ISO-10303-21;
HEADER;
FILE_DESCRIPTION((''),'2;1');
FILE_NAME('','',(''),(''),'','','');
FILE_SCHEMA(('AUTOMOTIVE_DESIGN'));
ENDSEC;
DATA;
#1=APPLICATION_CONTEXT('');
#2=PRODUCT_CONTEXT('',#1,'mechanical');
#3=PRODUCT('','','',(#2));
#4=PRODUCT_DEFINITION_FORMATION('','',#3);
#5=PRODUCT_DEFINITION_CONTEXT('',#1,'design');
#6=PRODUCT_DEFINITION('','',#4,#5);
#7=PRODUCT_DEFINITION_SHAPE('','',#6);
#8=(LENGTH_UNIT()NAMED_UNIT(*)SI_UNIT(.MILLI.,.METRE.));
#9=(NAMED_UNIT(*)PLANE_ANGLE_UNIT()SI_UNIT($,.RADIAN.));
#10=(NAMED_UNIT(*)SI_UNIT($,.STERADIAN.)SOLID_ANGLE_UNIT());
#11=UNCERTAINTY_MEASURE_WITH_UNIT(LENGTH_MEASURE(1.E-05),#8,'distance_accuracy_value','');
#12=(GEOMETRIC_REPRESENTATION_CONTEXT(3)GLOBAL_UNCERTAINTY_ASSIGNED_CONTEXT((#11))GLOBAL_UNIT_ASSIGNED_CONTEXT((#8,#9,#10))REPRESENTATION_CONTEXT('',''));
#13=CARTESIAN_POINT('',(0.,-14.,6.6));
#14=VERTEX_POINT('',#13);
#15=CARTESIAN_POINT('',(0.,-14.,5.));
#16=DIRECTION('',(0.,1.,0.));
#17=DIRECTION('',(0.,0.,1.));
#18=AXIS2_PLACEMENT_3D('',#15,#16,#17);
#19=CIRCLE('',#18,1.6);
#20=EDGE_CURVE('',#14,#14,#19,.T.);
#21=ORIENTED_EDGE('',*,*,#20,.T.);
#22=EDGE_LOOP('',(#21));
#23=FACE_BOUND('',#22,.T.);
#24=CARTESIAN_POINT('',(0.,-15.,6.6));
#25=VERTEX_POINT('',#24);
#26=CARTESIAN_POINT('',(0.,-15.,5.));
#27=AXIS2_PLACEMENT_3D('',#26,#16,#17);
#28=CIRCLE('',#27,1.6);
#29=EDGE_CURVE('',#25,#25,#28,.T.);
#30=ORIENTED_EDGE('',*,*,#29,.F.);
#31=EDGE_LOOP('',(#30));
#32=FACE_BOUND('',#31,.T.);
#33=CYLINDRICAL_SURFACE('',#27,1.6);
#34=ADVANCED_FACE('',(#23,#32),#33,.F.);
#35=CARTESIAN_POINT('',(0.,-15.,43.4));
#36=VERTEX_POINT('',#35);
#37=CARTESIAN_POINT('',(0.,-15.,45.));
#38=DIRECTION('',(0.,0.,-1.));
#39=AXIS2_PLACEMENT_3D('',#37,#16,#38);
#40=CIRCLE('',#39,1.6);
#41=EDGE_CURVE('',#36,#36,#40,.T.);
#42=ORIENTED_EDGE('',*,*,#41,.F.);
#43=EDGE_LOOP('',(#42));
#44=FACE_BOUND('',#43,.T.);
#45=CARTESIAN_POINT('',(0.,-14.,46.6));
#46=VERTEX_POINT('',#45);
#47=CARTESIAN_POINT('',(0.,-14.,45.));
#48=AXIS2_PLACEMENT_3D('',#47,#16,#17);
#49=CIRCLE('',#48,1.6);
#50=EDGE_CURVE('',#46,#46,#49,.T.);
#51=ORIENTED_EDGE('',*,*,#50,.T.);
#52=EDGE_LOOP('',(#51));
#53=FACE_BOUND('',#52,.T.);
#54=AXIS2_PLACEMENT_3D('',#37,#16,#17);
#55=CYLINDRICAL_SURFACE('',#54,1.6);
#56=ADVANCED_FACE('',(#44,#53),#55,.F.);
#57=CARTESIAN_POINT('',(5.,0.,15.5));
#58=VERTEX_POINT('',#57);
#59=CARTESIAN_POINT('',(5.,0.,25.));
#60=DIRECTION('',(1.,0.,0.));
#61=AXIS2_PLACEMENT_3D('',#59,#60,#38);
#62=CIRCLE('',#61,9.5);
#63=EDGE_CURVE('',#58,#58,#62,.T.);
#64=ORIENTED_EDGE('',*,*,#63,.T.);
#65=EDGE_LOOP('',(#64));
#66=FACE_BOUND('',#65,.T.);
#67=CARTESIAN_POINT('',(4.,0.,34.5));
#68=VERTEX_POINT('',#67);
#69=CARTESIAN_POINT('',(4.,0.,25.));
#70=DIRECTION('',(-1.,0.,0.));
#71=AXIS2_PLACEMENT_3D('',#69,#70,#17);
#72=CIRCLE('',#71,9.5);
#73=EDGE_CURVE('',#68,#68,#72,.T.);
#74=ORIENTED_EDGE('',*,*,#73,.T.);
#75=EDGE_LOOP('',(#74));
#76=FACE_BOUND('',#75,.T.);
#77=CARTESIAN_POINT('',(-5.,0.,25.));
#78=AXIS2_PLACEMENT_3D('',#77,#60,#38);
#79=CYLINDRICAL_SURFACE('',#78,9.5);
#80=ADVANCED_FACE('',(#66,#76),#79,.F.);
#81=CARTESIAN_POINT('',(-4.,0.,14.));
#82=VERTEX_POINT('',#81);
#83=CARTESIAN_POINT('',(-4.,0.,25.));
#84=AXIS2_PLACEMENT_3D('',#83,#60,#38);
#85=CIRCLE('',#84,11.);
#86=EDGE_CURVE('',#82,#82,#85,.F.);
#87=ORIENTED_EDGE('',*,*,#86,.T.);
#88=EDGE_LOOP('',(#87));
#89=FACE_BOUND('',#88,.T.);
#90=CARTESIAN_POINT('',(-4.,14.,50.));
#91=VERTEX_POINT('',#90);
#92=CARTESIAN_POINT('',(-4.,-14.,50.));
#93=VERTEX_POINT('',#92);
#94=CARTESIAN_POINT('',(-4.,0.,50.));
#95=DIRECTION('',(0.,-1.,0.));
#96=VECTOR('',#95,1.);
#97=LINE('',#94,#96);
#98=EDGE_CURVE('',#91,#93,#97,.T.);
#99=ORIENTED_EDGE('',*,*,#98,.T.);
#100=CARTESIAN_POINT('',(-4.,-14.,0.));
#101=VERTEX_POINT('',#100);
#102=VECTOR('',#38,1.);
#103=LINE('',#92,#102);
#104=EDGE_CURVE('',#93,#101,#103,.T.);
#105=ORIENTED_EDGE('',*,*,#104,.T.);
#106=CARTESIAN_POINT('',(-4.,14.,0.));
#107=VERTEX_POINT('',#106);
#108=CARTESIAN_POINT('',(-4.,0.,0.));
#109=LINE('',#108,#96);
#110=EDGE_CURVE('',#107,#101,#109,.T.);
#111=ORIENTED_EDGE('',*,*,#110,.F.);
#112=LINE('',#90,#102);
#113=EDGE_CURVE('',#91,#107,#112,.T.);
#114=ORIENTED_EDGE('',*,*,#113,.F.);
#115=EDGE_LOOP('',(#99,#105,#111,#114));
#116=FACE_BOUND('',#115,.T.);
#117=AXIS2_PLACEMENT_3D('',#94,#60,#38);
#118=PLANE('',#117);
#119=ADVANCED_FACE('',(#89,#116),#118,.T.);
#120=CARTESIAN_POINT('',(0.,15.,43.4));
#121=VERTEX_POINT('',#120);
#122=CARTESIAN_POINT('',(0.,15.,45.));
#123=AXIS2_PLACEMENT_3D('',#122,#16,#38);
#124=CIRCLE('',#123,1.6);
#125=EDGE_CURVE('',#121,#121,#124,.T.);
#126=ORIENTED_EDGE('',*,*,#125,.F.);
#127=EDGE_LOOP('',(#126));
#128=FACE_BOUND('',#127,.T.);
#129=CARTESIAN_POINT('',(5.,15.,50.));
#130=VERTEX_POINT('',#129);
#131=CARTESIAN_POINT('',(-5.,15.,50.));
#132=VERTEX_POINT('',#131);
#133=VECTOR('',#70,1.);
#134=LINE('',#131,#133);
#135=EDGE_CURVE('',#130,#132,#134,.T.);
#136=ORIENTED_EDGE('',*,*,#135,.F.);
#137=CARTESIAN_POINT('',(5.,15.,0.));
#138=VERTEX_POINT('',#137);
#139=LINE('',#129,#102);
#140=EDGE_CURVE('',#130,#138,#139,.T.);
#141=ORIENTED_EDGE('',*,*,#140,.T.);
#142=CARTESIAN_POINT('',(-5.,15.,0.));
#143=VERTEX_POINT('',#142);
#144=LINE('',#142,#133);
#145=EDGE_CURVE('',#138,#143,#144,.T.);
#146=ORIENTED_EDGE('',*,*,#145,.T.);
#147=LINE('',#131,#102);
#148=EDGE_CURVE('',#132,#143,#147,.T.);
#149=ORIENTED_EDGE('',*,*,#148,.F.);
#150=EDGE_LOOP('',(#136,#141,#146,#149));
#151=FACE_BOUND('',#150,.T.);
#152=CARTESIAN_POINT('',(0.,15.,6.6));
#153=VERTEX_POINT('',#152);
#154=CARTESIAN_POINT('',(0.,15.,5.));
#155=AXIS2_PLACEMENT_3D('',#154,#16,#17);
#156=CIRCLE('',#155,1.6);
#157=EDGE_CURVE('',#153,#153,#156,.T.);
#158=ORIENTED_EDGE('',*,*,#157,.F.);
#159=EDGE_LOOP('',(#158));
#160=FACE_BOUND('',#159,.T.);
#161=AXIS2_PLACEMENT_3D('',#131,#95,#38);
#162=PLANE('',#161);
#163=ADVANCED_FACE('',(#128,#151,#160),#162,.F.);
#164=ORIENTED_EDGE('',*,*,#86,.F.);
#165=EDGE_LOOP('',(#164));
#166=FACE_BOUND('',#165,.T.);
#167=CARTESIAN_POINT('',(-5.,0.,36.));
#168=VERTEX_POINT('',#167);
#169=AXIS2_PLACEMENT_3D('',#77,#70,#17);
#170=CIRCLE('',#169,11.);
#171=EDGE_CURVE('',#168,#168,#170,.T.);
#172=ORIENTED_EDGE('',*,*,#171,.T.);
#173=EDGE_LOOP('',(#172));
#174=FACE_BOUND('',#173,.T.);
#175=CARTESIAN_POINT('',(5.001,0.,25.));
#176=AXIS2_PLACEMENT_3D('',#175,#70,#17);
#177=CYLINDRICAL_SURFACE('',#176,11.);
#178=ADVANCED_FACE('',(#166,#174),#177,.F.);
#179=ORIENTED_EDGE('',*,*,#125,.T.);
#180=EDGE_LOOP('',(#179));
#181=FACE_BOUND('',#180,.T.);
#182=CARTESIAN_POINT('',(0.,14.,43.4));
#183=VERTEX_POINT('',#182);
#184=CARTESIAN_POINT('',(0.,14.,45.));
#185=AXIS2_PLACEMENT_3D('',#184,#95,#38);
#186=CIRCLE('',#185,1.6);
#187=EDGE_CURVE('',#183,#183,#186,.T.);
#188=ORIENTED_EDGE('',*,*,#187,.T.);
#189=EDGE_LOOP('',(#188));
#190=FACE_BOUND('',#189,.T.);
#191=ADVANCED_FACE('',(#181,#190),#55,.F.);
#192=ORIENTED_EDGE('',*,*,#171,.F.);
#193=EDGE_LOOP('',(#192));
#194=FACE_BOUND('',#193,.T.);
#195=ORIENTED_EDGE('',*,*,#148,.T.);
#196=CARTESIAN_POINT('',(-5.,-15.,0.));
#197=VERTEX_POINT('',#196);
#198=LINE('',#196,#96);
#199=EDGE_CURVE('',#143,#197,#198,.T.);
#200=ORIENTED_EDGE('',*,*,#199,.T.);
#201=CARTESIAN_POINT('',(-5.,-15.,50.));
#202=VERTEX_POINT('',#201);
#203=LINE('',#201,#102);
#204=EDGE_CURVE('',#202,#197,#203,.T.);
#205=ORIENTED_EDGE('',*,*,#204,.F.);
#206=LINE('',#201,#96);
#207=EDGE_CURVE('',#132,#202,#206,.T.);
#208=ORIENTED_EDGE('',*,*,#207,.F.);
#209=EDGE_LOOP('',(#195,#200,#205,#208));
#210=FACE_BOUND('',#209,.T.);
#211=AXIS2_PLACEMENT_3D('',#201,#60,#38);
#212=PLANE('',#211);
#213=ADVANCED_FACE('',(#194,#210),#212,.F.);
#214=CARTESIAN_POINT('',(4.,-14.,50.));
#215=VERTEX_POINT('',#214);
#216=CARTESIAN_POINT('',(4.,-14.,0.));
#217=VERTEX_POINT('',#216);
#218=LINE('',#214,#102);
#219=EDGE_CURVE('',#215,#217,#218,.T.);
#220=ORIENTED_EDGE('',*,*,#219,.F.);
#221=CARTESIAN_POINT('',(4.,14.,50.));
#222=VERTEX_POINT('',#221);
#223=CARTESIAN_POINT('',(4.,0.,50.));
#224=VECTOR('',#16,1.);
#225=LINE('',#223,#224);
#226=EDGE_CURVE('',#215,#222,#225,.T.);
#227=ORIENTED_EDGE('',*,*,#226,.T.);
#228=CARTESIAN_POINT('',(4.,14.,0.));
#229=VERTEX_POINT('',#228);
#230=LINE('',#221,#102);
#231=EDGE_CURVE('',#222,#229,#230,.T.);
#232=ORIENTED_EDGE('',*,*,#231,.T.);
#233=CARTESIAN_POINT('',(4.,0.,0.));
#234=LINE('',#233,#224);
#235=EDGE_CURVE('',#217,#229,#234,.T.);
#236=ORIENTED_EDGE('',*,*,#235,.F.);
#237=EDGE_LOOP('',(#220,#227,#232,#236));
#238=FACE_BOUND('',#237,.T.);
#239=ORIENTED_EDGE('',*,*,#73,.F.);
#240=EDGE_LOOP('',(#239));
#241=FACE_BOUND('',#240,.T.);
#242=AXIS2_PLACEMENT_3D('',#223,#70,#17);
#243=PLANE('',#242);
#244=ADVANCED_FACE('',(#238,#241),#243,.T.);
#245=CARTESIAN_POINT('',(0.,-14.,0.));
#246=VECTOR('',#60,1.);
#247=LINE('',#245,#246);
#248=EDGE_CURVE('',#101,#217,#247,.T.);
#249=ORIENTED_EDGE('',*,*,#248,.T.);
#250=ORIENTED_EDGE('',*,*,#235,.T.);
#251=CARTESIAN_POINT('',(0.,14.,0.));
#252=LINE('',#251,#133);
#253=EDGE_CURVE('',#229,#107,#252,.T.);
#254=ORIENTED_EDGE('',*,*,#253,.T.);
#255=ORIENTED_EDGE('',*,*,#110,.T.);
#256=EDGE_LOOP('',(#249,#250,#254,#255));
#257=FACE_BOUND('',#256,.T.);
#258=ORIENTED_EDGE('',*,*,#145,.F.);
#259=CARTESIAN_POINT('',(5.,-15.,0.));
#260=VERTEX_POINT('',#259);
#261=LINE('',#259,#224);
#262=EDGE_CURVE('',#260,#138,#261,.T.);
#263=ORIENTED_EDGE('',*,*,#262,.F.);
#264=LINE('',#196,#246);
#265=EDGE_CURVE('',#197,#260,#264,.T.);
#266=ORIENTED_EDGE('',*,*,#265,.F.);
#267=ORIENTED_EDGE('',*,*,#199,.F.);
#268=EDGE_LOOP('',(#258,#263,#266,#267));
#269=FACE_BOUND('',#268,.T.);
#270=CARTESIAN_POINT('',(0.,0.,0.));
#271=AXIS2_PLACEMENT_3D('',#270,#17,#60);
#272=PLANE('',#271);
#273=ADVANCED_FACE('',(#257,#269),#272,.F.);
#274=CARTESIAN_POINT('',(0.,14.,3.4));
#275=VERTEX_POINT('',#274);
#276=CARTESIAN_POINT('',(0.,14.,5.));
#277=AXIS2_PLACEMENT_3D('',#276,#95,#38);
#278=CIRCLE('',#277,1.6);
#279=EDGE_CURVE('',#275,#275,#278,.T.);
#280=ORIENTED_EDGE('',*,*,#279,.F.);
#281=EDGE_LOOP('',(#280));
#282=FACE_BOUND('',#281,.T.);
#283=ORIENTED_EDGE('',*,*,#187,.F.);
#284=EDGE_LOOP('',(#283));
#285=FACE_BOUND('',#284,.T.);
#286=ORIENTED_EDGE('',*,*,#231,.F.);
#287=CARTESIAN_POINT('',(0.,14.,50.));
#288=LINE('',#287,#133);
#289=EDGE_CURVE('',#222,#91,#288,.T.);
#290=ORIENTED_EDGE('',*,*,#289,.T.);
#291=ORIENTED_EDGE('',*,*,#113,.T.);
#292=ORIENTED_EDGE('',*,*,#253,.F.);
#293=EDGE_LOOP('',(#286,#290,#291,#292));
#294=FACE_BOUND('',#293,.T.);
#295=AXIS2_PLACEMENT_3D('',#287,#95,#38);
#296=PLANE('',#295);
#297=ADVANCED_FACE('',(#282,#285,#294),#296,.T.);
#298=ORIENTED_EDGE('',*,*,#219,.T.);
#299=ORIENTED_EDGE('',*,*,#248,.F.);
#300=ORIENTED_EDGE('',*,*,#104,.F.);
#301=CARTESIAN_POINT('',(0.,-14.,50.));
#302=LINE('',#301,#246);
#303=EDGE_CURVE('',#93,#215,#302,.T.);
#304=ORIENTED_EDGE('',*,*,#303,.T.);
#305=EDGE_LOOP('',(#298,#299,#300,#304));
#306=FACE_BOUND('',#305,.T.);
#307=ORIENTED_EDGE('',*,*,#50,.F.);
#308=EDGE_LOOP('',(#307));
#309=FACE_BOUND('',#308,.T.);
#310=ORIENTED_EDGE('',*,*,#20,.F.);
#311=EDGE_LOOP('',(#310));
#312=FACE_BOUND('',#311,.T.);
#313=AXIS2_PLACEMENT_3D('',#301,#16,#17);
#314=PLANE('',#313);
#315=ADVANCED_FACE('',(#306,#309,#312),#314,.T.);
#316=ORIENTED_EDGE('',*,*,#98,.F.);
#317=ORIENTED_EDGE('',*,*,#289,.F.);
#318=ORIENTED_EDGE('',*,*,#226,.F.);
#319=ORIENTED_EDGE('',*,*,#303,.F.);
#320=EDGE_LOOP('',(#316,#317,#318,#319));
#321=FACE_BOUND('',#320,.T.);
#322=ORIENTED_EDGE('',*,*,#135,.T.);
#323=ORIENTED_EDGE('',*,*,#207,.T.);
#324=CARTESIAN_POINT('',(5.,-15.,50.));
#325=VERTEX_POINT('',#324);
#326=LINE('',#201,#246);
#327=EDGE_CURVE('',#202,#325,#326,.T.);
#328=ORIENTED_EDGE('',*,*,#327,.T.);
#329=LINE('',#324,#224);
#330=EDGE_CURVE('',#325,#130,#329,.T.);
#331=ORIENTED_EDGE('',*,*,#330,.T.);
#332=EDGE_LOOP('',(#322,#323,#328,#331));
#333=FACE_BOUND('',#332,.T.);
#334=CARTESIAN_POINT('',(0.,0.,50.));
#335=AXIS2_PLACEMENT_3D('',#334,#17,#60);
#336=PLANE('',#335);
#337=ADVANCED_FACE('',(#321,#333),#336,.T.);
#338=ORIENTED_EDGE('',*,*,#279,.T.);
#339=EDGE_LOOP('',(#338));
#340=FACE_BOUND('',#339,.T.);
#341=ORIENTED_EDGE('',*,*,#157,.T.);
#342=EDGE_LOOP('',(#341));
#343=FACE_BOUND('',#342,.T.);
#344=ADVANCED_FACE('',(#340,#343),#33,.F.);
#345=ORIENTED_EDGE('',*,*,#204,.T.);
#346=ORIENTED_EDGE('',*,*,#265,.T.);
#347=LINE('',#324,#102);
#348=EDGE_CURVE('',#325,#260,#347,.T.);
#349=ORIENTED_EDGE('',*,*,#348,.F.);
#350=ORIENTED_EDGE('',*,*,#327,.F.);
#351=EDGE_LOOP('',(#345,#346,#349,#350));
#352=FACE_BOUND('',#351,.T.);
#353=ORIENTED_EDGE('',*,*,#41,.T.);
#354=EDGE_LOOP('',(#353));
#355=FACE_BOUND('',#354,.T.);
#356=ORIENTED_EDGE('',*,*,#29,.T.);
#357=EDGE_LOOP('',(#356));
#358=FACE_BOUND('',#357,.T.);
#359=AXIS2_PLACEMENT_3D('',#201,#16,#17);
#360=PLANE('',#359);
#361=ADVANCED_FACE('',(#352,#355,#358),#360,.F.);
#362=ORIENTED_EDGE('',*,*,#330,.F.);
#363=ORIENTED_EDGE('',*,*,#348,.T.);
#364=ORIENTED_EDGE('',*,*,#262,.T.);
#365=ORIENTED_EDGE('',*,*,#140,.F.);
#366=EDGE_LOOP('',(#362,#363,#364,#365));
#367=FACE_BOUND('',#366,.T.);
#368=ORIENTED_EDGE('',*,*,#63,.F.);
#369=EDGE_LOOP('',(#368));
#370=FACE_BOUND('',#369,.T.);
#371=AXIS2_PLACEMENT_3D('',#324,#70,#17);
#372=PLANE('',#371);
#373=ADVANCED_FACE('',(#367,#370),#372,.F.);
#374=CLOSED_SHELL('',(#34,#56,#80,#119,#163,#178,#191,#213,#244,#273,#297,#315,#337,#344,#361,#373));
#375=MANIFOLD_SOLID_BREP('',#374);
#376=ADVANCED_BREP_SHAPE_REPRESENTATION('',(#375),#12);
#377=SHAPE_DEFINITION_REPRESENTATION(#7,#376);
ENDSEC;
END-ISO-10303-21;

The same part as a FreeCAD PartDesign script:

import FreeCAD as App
import Part
import Sketcher
Q = App.Units.Quantity

doc = App.newDocument("Part")
body = doc.addObject("PartDesign::Body", "Body")

# Sketch on XY plane
sketch1 = body.newObject("Sketcher::SketchObject", "Sketch")
sketch1.AttachmentSupport = (doc.getObject("XY_Plane"), [""])
sketch1.MapMode = "FlatFace"
sketch1.addGeometry(Part.LineSegment(App.Vector(-5, 15, 0), App.Vector(-5, -15, 0)), False)
sketch1.addGeometry(Part.LineSegment(App.Vector(-5, -15, 0), App.Vector(5, -15, 0)), False)
sketch1.addGeometry(Part.LineSegment(App.Vector(5, -15, 0), App.Vector(5, 15, 0)), False)
sketch1.addGeometry(Part.LineSegment(App.Vector(5, 15, 0), App.Vector(-5, 15, 0)), False)
sketch1.addGeometry(Part.LineSegment(App.Vector(4, -14, 0), App.Vector(-4, -14, 0)), False)
sketch1.addGeometry(Part.LineSegment(App.Vector(-4, -14, 0), App.Vector(-4, 14, 0)), False)
sketch1.addGeometry(Part.LineSegment(App.Vector(-4, 14, 0), App.Vector(4, 14, 0)), False)
sketch1.addGeometry(Part.LineSegment(App.Vector(4, 14, 0), App.Vector(4, -14, 0)), False)
sketch1.addConstraint(Sketcher.Constraint("Coincident", 0, 2, 1, 1))
sketch1.addConstraint(Sketcher.Constraint("Coincident", 1, 2, 2, 1))
sketch1.addConstraint(Sketcher.Constraint("Coincident", 2, 2, 3, 1))
sketch1.addConstraint(Sketcher.Constraint("Coincident", 3, 2, 0, 1))
sketch1.addConstraint(Sketcher.Constraint("Coincident", 4, 2, 5, 1))
sketch1.addConstraint(Sketcher.Constraint("Coincident", 5, 2, 6, 1))
sketch1.addConstraint(Sketcher.Constraint("Coincident", 6, 2, 7, 1))
sketch1.addConstraint(Sketcher.Constraint("Coincident", 7, 2, 4, 1))
sketch1.addConstraint(Sketcher.Constraint("Vertical", 0))
sketch1.addConstraint(Sketcher.Constraint("Horizontal", 1))
sketch1.addConstraint(Sketcher.Constraint("Vertical", 2))
sketch1.addConstraint(Sketcher.Constraint("Horizontal", 3))
sketch1.addConstraint(Sketcher.Constraint("Horizontal", 4))
sketch1.addConstraint(Sketcher.Constraint("Vertical", 5))
sketch1.addConstraint(Sketcher.Constraint("Horizontal", 6))
sketch1.addConstraint(Sketcher.Constraint("Vertical", 7))
sketch1.addConstraint(Sketcher.Constraint("Symmetric", 0, 2, 2, 2, -1, 1))
sketch1.addConstraint(Sketcher.Constraint("Symmetric", 4, 2, 6, 2, -1, 1))
sketch1.addConstraint(Sketcher.Constraint("DistanceX", 1, 1, 1, 2, Q("10 mm")))
sketch1.addConstraint(Sketcher.Constraint("DistanceX", 4, 2, 4, 1, Q("8 mm")))
sketch1.addConstraint(Sketcher.Constraint("DistanceY", 0, 2, 0, 1, Q("30 mm")))
sketch1.addConstraint(Sketcher.Constraint("DistanceY", 5, 1, 5, 2, Q("28 mm")))
pad1 = body.newObject("PartDesign::Pad", "Pad")
pad1.Profile = sketch1
pad1.Length = 50

# Sketch on XZ plane
sketch2 = body.newObject("Sketcher::SketchObject", "Sketch001")
sketch2.AttachmentSupport = (doc.getObject("XZ_Plane"), [""])
sketch2.MapMode = "FlatFace"
sketch2.AttachmentOffset = App.Placement(App.Vector(0, 0, -15), App.Rotation())
sketch2.addGeometry(Part.Circle(App.Vector(0, 5, 0), App.Vector(0, 0, 1), 1.6), False)
sketch2.addGeometry(Part.Circle(App.Vector(0, 45, 0), App.Vector(0, 0, 1), 1.6), False)
sketch2.addConstraint(Sketcher.Constraint("Equal", 0, 1))
sketch2.addConstraint(Sketcher.Constraint("PointOnObject", 0, 3, -2))
sketch2.addConstraint(Sketcher.Constraint("PointOnObject", 1, 3, -2))
sketch2.addConstraint(Sketcher.Constraint("Diameter", 0, Q("3.2 mm")))
sketch2.addConstraint(Sketcher.Constraint("DistanceY", -1, 1, 0, 3, Q("5 mm")))
sketch2.addConstraint(Sketcher.Constraint("DistanceY", -1, 1, 1, 3, Q("45 mm")))
pocket1 = body.newObject("PartDesign::Pocket", "Pocket")
pocket1.Profile = sketch2
pocket1.Type = "ThroughAll"
pocket1.Reversed = True

# Sketch on YZ plane
sketch3 = body.newObject("Sketcher::SketchObject", "Sketch002")
sketch3.AttachmentSupport = (doc.getObject("YZ_Plane"), [""])
sketch3.MapMode = "FlatFace"
sketch3.AttachmentOffset = App.Placement(App.Vector(0, 0, 5), App.Rotation())
sketch3.addGeometry(Part.Circle(App.Vector(0, 25, 0), App.Vector(0, 0, 1), 10), False)
sketch3.addConstraint(Sketcher.Constraint("PointOnObject", 0, 3, -2))
sketch3.addConstraint(Sketcher.Constraint("Diameter", 0, Q("19 mm")))
sketch3.addConstraint(Sketcher.Constraint("DistanceY", -1, 1, 0, 3, Q("25 mm")))
pocket2 = body.newObject("PartDesign::Pocket", "Pocket001")
pocket2.Profile = sketch3
pocket2.Type = "ThroughAll"

# Sketch on YZ plane
sketch4 = body.newObject("Sketcher::SketchObject", "Sketch003")
sketch4.AttachmentSupport = (doc.getObject("YZ_Plane"), [""])
sketch4.MapMode = "FlatFace"
sketch4.AttachmentOffset = App.Placement(App.Vector(0, 0, -5), App.Rotation())
sketch4.addGeometry(Part.Circle(App.Vector(0, 25, 0), App.Vector(0, 0, 1), 11), False)
sketch4.addConstraint(Sketcher.Constraint("PointOnObject", 0, 3, -2))
sketch4.addConstraint(Sketcher.Constraint("Diameter", 0, Q("22 mm")))
sketch4.addConstraint(Sketcher.Constraint("DistanceY", -1, 1, 0, 3, Q("25 mm")))
pocket3 = body.newObject("PartDesign::Pocket", "Pocket002")
pocket3.Profile = sketch4
pocket3.Length = 1
pocket3.Reversed = True

doc.recompute()
